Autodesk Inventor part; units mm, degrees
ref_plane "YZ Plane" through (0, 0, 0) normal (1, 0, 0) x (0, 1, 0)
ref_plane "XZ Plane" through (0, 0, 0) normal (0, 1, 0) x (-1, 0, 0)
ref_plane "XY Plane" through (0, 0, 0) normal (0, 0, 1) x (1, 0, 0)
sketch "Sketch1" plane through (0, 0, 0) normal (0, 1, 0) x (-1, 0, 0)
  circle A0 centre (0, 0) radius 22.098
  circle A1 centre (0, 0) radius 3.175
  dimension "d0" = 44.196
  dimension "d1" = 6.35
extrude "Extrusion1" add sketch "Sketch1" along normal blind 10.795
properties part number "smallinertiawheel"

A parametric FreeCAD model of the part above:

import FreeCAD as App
import Part
import Sketcher

V = App.Vector
Q = App.Units.Quantity

doc = App.newDocument("Part")
body = doc.addObject("PartDesign::Body", "Body")

sketch1 = body.newObject("Sketcher::SketchObject", "Sketch")
sketch1.AttachmentSupport = (doc.getObject("XZ_Plane"), [""])
sketch1.MapMode = "FlatFace"
sketch1.addGeometry([
    Part.Circle(V(0, 0, 0), V(0, 0, 1), 22.1),
    Part.Circle(V(0, 0, 0), V(0, 0, 1), 3.2),
], False)
sketch1.addConstraint([
    Sketcher.Constraint("Coincident", 0, 3, -1, 1),
    Sketcher.Constraint("Coincident", 1, 3, -1, 1),
    Sketcher.Constraint("Diameter", 0, Q("1.74 in")),
    Sketcher.Constraint("Diameter", 1, Q("0.25 in")),
])
pad1 = body.newObject("PartDesign::Pad", "Pad")
pad1.Profile = sketch1
pad1.Length = Q("0.425 in")
pad1.Reversed = True

doc.recompute()
